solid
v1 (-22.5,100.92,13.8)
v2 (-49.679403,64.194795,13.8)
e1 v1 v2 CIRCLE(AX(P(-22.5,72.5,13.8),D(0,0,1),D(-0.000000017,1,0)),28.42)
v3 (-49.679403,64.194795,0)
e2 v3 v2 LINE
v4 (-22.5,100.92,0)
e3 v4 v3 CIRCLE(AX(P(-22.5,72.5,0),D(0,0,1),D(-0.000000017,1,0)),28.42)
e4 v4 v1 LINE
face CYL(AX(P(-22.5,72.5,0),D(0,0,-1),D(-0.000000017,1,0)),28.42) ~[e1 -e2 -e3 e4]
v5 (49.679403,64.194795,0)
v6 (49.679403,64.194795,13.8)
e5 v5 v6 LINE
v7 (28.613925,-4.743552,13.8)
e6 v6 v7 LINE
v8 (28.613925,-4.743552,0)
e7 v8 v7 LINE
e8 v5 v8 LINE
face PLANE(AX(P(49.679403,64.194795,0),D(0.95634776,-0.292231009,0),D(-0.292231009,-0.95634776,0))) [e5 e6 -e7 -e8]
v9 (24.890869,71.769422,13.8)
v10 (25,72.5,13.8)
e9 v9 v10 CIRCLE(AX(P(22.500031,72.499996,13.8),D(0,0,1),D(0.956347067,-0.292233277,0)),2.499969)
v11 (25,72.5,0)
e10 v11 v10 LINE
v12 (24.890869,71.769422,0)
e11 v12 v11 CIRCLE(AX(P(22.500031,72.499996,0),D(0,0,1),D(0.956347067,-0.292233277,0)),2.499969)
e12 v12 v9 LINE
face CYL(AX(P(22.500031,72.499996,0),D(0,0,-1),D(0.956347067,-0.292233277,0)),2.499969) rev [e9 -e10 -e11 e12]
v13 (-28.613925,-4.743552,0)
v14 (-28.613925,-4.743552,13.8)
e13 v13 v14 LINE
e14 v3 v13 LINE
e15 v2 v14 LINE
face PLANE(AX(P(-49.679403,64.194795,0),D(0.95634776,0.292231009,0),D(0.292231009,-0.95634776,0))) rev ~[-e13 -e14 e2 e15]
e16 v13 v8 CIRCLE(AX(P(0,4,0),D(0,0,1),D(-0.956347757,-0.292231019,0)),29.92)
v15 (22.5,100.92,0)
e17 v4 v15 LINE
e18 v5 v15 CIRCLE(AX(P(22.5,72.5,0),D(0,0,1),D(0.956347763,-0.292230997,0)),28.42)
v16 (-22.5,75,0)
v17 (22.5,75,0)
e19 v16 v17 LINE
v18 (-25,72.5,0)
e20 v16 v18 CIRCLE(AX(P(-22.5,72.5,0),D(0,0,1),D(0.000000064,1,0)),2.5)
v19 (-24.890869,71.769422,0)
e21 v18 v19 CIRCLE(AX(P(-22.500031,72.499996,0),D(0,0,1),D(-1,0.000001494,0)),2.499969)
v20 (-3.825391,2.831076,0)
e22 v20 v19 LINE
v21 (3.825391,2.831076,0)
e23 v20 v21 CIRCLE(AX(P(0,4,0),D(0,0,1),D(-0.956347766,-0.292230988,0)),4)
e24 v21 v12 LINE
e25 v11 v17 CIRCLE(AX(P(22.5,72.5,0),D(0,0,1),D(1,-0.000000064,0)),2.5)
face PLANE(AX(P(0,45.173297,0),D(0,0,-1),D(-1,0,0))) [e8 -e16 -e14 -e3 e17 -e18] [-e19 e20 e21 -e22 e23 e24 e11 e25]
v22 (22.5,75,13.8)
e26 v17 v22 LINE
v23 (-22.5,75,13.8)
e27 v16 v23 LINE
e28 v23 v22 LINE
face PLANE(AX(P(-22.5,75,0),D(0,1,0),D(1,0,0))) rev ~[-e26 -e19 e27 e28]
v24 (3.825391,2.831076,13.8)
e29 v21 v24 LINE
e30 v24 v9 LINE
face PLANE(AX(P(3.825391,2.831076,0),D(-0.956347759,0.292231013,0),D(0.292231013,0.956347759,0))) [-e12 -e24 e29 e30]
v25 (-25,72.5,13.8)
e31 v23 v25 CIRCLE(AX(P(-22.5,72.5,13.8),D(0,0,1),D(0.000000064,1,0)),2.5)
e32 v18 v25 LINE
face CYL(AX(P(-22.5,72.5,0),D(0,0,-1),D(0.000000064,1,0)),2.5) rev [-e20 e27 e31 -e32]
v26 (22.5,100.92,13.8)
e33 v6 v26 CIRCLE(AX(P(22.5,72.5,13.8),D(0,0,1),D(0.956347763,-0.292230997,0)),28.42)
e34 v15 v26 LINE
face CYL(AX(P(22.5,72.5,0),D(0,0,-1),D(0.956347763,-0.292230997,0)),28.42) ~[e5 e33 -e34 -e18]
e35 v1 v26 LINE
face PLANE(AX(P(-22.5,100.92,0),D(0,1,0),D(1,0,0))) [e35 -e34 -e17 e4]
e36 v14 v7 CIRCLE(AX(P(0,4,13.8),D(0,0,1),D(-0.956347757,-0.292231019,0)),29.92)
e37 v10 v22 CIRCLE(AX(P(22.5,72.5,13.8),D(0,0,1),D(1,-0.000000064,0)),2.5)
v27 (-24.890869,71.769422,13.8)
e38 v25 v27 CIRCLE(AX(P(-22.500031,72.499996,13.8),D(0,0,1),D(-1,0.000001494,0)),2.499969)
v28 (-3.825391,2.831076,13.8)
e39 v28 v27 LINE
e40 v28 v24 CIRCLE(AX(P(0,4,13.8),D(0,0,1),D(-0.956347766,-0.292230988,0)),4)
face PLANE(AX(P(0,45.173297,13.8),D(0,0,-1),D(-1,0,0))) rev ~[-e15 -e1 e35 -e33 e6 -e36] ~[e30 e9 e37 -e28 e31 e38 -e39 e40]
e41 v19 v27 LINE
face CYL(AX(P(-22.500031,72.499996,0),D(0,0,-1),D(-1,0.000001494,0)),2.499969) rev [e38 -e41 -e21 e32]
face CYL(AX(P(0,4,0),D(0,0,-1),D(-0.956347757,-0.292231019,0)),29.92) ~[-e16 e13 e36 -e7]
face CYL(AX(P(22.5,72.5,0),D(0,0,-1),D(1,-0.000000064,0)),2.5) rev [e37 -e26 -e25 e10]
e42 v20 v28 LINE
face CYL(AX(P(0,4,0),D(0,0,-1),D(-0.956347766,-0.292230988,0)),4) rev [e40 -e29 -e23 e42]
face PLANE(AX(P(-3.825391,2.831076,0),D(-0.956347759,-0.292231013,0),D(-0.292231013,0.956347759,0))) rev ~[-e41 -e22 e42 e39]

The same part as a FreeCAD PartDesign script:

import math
import FreeCAD as App
import Part
import Sketcher

V = App.Vector
Q = App.Units.Quantity

doc = App.newDocument("Part")
params = doc.addObject("Spreadsheet::Sheet", "Params")
for row, (alias, value) in enumerate([
    ("sketch1_radius", "4 mm"),
    ("sketch1_radius2", "2.5 mm"),
    ("sketch1_radius3", "2.5 mm"),
    ("sketch1_width", "45 mm"),
    ("sketch1_width2", "45 mm"),
    ("pad1_length", "13.8 mm"),
], start=1):
    params.set(f"A{row}", alias)
    params.set(f"B{row}", "=" + value)
    params.setAlias(f"B{row}", alias)

body = doc.addObject("PartDesign::Body", "Body")

# Sketch on XY plane
sketch1 = body.newObject("Sketcher::SketchObject", "Sketch")
sketch1.AttachmentSupport = (doc.getObject("XY_Plane"), [""])
sketch1.MapMode = "FlatFace"
sketch1.addGeometry(Part.LineSegment(V(22.5, 100.92, 0), V(-22.5, 100.92, 0)), False)
sketch1.addGeometry(Part.ArcOfCircle(Part.Circle(V(-22.5, 72.5, 0), V(0, 0, 1), 28.42), math.radians(90.000001), math.radians(196.99157)), False)
sketch1.addGeometry(Part.LineSegment(V(-49.679403, 64.194795, 0), V(-28.613925, -4.743552, 0)), False)
sketch1.addGeometry(Part.ArcOfCircle(Part.Circle(V(0, 4, 0), V(0, 0, 1), 29.92), math.radians(-163.008429), math.radians(-16.991571)), False)
sketch1.addGeometry(Part.LineSegment(V(28.613925, -4.743552, 0), V(49.679403, 64.194795, 0)), False)
sketch1.addGeometry(Part.ArcOfCircle(Part.Circle(V(22.5, 72.5, 0), V(0, 0, 1), 28.42), math.radians(-16.99157), math.radians(89.999999)), False)
sketch1.addGeometry(Part.ArcOfCircle(Part.Circle(V(0, 4, 0), V(0, 0, 1), 4), math.radians(-163.008431), math.radians(-16.991569)), False)
sketch1.addGeometry(Part.LineSegment(V(-3.825391, 2.831076, 0), V(-24.890869, 71.769422, 0)), False)
sketch1.addGeometry(Part.ArcOfCircle(Part.Circle(V(-22.500031, 72.499996, 0), V(0, 0, 1), 2.499969), math.radians(179.999914), math.radians(196.991706)), False)
sketch1.addGeometry(Part.ArcOfCircle(Part.Circle(V(-22.5, 72.5, 0), V(0, 0, 1), 2.5), math.radians(89.999996), math.radians(180.000004)), False)
sketch1.addGeometry(Part.LineSegment(V(-22.5, 75, 0), V(22.5, 75, 0)), False)
sketch1.addGeometry(Part.ArcOfCircle(Part.Circle(V(22.5, 72.5, 0), V(0, 0, 1), 2.5), math.radians(-0.000004), math.radians(90.000004)), False)
sketch1.addGeometry(Part.ArcOfCircle(Part.Circle(V(22.500031, 72.499996, 0), V(0, 0, 1), 2.499969), math.radians(-16.991706), math.radians(0.000086)), False)
sketch1.addGeometry(Part.LineSegment(V(24.890869, 71.769422, 0), V(3.825391, 2.831076, 0)), False)
sketch1.addConstraint(Sketcher.Constraint("Coincident", 0, 2, 1, 1))
sketch1.addConstraint(Sketcher.Constraint("Coincident", 1, 2, 2, 1))
sketch1.addConstraint(Sketcher.Constraint("Coincident", 2, 2, 3, 1))
sketch1.addConstraint(Sketcher.Constraint("Coincident", 3, 2, 4, 1))
sketch1.addConstraint(Sketcher.Constraint("Coincident", 4, 2, 5, 1))
sketch1.addConstraint(Sketcher.Constraint("Coincident", 5, 2, 0, 1))
sketch1.addConstraint(Sketcher.Constraint("Coincident", 6, 1, 7, 1))
sketch1.addConstraint(Sketcher.Constraint("Coincident", 7, 2, 8, 2))
sketch1.addConstraint(Sketcher.Constraint("Coincident", 8, 1, 9, 2))
sketch1.addConstraint(Sketcher.Constraint("Coincident", 9, 1, 10, 1))
sketch1.addConstraint(Sketcher.Constraint("Coincident", 10, 2, 11, 2))
sketch1.addConstraint(Sketcher.Constraint("Coincident", 11, 1, 12, 2))
sketch1.addConstraint(Sketcher.Constraint("Coincident", 12, 1, 13, 1))
sketch1.addConstraint(Sketcher.Constraint("Coincident", 13, 2, 6, 2))
sketch1.addConstraint(Sketcher.Constraint("Horizontal", 0))
sketch1.addConstraint(Sketcher.Constraint("Horizontal", 10))
sketch1.addConstraint(Sketcher.Constraint("Coincident", 6, 3, 3, 3))
sketch1.addConstraint(Sketcher.Constraint("Coincident", 9, 3, 1, 3))
sketch1.addConstraint(Sketcher.Constraint("Coincident", 11, 3, 5, 3))
sketch1.addConstraint(Sketcher.Constraint("PointOnObject", 3, 3, -2))
sketch1.addConstraint(Sketcher.Constraint("Radius", 6, Q("4 mm")))
sketch1.addConstraint(Sketcher.Constraint("Radius", 9, Q("2.5 mm")))
sketch1.addConstraint(Sketcher.Constraint("Radius", 11, Q("2.5 mm")))
sketch1.addConstraint(Sketcher.Constraint("DistanceX", 0, 2, 0, 1, Q("45 mm")))
sketch1.addConstraint(Sketcher.Constraint("DistanceX", 10, 1, 10, 2, Q("45 mm")))
sketch1.addConstraint(Sketcher.Constraint("Radius", 1, Q("28.42 mm")))
sketch1.addConstraint(Sketcher.Constraint("Radius", 3, Q("29.92 mm")))
sketch1.addConstraint(Sketcher.Constraint("DistanceY", -1, 1, 3, 3, Q("4 mm")))
sketch1.addConstraint(Sketcher.Constraint("DistanceX", 8, 1, -1, 1, Q("25 mm")))
sketch1.addConstraint(Sketcher.Constraint("DistanceY", -1, 1, 9, 1, Q("75 mm")))
sketch1.addConstraint(Sketcher.Constraint("DistanceX", -1, 1, 11, 1, Q("25 mm")))
sketch1.addConstraint(Sketcher.Constraint("DistanceX", 0, 2, 5, 3, Q("45 mm")))
sketch1.addConstraint(Sketcher.Constraint("DistanceY", -1, 1, 8, 1, Q("72.5 mm")))
sketch1.addConstraint(Sketcher.Constraint("DistanceX", 9, 1, -1, 1, Q("22.5 mm")))
sketch1.addConstraint(Sketcher.Constraint("DistanceY", -1, 1, 11, 1, Q("72.5 mm")))
sketch1.addConstraint(Sketcher.Constraint("Radius", 8, Q("2.499969 mm")))
sketch1.addConstraint(Sketcher.Constraint("Radius", 12, Q("2.499969 mm")))
sketch1.addConstraint(Sketcher.Constraint("DistanceY", 1, 2, 8, 3, Q("8.305201 mm")))
sketch1.addConstraint(Sketcher.Constraint("DistanceY", 4, 2, 12, 3, Q("8.305201 mm")))
sketch1.addConstraint(Sketcher.Constraint("Distance", 2, Q("72.08502 mm")))
sketch1.addConstraint(Sketcher.Constraint("Distance", 4, Q("72.08502 mm")))
sketch1.addConstraint(Sketcher.Constraint("Distance", 7, Q("72.085019 mm")))
sketch1.addConstraint(Sketcher.Constraint("Distance", 13, Q("72.085019 mm")))
sketch1.addConstraint(Sketcher.Constraint("DistanceY", 3, 2, -1, 1, Q("4.743552 mm")))
sketch1.addConstraint(Sketcher.Constraint("DistanceX", 6, 1, -1, 1, Q("3.825391 mm")))
sketch1.addConstraint(Sketcher.Constraint("DistanceX", 7, 2, -1, 1, Q("24.890869 mm")))
sketch1.addConstraint(Sketcher.Constraint("DistanceX", -1, 1, 12, 1, Q("24.890869 mm")))
sketch1.setExpression("Constraints[20]", "Params.sketch1_radius")
sketch1.setExpression("Constraints[21]", "Params.sketch1_radius2")
sketch1.setExpression("Constraints[22]", "Params.sketch1_radius3")
sketch1.setExpression("Constraints[23]", "Params.sketch1_width")
sketch1.setExpression("Constraints[24]", "Params.sketch1_width2")
pad1 = body.newObject("PartDesign::Pad", "Pad")
pad1.Profile = sketch1
pad1.setExpression("Length", "Params.pad1_length")

doc.recompute()
